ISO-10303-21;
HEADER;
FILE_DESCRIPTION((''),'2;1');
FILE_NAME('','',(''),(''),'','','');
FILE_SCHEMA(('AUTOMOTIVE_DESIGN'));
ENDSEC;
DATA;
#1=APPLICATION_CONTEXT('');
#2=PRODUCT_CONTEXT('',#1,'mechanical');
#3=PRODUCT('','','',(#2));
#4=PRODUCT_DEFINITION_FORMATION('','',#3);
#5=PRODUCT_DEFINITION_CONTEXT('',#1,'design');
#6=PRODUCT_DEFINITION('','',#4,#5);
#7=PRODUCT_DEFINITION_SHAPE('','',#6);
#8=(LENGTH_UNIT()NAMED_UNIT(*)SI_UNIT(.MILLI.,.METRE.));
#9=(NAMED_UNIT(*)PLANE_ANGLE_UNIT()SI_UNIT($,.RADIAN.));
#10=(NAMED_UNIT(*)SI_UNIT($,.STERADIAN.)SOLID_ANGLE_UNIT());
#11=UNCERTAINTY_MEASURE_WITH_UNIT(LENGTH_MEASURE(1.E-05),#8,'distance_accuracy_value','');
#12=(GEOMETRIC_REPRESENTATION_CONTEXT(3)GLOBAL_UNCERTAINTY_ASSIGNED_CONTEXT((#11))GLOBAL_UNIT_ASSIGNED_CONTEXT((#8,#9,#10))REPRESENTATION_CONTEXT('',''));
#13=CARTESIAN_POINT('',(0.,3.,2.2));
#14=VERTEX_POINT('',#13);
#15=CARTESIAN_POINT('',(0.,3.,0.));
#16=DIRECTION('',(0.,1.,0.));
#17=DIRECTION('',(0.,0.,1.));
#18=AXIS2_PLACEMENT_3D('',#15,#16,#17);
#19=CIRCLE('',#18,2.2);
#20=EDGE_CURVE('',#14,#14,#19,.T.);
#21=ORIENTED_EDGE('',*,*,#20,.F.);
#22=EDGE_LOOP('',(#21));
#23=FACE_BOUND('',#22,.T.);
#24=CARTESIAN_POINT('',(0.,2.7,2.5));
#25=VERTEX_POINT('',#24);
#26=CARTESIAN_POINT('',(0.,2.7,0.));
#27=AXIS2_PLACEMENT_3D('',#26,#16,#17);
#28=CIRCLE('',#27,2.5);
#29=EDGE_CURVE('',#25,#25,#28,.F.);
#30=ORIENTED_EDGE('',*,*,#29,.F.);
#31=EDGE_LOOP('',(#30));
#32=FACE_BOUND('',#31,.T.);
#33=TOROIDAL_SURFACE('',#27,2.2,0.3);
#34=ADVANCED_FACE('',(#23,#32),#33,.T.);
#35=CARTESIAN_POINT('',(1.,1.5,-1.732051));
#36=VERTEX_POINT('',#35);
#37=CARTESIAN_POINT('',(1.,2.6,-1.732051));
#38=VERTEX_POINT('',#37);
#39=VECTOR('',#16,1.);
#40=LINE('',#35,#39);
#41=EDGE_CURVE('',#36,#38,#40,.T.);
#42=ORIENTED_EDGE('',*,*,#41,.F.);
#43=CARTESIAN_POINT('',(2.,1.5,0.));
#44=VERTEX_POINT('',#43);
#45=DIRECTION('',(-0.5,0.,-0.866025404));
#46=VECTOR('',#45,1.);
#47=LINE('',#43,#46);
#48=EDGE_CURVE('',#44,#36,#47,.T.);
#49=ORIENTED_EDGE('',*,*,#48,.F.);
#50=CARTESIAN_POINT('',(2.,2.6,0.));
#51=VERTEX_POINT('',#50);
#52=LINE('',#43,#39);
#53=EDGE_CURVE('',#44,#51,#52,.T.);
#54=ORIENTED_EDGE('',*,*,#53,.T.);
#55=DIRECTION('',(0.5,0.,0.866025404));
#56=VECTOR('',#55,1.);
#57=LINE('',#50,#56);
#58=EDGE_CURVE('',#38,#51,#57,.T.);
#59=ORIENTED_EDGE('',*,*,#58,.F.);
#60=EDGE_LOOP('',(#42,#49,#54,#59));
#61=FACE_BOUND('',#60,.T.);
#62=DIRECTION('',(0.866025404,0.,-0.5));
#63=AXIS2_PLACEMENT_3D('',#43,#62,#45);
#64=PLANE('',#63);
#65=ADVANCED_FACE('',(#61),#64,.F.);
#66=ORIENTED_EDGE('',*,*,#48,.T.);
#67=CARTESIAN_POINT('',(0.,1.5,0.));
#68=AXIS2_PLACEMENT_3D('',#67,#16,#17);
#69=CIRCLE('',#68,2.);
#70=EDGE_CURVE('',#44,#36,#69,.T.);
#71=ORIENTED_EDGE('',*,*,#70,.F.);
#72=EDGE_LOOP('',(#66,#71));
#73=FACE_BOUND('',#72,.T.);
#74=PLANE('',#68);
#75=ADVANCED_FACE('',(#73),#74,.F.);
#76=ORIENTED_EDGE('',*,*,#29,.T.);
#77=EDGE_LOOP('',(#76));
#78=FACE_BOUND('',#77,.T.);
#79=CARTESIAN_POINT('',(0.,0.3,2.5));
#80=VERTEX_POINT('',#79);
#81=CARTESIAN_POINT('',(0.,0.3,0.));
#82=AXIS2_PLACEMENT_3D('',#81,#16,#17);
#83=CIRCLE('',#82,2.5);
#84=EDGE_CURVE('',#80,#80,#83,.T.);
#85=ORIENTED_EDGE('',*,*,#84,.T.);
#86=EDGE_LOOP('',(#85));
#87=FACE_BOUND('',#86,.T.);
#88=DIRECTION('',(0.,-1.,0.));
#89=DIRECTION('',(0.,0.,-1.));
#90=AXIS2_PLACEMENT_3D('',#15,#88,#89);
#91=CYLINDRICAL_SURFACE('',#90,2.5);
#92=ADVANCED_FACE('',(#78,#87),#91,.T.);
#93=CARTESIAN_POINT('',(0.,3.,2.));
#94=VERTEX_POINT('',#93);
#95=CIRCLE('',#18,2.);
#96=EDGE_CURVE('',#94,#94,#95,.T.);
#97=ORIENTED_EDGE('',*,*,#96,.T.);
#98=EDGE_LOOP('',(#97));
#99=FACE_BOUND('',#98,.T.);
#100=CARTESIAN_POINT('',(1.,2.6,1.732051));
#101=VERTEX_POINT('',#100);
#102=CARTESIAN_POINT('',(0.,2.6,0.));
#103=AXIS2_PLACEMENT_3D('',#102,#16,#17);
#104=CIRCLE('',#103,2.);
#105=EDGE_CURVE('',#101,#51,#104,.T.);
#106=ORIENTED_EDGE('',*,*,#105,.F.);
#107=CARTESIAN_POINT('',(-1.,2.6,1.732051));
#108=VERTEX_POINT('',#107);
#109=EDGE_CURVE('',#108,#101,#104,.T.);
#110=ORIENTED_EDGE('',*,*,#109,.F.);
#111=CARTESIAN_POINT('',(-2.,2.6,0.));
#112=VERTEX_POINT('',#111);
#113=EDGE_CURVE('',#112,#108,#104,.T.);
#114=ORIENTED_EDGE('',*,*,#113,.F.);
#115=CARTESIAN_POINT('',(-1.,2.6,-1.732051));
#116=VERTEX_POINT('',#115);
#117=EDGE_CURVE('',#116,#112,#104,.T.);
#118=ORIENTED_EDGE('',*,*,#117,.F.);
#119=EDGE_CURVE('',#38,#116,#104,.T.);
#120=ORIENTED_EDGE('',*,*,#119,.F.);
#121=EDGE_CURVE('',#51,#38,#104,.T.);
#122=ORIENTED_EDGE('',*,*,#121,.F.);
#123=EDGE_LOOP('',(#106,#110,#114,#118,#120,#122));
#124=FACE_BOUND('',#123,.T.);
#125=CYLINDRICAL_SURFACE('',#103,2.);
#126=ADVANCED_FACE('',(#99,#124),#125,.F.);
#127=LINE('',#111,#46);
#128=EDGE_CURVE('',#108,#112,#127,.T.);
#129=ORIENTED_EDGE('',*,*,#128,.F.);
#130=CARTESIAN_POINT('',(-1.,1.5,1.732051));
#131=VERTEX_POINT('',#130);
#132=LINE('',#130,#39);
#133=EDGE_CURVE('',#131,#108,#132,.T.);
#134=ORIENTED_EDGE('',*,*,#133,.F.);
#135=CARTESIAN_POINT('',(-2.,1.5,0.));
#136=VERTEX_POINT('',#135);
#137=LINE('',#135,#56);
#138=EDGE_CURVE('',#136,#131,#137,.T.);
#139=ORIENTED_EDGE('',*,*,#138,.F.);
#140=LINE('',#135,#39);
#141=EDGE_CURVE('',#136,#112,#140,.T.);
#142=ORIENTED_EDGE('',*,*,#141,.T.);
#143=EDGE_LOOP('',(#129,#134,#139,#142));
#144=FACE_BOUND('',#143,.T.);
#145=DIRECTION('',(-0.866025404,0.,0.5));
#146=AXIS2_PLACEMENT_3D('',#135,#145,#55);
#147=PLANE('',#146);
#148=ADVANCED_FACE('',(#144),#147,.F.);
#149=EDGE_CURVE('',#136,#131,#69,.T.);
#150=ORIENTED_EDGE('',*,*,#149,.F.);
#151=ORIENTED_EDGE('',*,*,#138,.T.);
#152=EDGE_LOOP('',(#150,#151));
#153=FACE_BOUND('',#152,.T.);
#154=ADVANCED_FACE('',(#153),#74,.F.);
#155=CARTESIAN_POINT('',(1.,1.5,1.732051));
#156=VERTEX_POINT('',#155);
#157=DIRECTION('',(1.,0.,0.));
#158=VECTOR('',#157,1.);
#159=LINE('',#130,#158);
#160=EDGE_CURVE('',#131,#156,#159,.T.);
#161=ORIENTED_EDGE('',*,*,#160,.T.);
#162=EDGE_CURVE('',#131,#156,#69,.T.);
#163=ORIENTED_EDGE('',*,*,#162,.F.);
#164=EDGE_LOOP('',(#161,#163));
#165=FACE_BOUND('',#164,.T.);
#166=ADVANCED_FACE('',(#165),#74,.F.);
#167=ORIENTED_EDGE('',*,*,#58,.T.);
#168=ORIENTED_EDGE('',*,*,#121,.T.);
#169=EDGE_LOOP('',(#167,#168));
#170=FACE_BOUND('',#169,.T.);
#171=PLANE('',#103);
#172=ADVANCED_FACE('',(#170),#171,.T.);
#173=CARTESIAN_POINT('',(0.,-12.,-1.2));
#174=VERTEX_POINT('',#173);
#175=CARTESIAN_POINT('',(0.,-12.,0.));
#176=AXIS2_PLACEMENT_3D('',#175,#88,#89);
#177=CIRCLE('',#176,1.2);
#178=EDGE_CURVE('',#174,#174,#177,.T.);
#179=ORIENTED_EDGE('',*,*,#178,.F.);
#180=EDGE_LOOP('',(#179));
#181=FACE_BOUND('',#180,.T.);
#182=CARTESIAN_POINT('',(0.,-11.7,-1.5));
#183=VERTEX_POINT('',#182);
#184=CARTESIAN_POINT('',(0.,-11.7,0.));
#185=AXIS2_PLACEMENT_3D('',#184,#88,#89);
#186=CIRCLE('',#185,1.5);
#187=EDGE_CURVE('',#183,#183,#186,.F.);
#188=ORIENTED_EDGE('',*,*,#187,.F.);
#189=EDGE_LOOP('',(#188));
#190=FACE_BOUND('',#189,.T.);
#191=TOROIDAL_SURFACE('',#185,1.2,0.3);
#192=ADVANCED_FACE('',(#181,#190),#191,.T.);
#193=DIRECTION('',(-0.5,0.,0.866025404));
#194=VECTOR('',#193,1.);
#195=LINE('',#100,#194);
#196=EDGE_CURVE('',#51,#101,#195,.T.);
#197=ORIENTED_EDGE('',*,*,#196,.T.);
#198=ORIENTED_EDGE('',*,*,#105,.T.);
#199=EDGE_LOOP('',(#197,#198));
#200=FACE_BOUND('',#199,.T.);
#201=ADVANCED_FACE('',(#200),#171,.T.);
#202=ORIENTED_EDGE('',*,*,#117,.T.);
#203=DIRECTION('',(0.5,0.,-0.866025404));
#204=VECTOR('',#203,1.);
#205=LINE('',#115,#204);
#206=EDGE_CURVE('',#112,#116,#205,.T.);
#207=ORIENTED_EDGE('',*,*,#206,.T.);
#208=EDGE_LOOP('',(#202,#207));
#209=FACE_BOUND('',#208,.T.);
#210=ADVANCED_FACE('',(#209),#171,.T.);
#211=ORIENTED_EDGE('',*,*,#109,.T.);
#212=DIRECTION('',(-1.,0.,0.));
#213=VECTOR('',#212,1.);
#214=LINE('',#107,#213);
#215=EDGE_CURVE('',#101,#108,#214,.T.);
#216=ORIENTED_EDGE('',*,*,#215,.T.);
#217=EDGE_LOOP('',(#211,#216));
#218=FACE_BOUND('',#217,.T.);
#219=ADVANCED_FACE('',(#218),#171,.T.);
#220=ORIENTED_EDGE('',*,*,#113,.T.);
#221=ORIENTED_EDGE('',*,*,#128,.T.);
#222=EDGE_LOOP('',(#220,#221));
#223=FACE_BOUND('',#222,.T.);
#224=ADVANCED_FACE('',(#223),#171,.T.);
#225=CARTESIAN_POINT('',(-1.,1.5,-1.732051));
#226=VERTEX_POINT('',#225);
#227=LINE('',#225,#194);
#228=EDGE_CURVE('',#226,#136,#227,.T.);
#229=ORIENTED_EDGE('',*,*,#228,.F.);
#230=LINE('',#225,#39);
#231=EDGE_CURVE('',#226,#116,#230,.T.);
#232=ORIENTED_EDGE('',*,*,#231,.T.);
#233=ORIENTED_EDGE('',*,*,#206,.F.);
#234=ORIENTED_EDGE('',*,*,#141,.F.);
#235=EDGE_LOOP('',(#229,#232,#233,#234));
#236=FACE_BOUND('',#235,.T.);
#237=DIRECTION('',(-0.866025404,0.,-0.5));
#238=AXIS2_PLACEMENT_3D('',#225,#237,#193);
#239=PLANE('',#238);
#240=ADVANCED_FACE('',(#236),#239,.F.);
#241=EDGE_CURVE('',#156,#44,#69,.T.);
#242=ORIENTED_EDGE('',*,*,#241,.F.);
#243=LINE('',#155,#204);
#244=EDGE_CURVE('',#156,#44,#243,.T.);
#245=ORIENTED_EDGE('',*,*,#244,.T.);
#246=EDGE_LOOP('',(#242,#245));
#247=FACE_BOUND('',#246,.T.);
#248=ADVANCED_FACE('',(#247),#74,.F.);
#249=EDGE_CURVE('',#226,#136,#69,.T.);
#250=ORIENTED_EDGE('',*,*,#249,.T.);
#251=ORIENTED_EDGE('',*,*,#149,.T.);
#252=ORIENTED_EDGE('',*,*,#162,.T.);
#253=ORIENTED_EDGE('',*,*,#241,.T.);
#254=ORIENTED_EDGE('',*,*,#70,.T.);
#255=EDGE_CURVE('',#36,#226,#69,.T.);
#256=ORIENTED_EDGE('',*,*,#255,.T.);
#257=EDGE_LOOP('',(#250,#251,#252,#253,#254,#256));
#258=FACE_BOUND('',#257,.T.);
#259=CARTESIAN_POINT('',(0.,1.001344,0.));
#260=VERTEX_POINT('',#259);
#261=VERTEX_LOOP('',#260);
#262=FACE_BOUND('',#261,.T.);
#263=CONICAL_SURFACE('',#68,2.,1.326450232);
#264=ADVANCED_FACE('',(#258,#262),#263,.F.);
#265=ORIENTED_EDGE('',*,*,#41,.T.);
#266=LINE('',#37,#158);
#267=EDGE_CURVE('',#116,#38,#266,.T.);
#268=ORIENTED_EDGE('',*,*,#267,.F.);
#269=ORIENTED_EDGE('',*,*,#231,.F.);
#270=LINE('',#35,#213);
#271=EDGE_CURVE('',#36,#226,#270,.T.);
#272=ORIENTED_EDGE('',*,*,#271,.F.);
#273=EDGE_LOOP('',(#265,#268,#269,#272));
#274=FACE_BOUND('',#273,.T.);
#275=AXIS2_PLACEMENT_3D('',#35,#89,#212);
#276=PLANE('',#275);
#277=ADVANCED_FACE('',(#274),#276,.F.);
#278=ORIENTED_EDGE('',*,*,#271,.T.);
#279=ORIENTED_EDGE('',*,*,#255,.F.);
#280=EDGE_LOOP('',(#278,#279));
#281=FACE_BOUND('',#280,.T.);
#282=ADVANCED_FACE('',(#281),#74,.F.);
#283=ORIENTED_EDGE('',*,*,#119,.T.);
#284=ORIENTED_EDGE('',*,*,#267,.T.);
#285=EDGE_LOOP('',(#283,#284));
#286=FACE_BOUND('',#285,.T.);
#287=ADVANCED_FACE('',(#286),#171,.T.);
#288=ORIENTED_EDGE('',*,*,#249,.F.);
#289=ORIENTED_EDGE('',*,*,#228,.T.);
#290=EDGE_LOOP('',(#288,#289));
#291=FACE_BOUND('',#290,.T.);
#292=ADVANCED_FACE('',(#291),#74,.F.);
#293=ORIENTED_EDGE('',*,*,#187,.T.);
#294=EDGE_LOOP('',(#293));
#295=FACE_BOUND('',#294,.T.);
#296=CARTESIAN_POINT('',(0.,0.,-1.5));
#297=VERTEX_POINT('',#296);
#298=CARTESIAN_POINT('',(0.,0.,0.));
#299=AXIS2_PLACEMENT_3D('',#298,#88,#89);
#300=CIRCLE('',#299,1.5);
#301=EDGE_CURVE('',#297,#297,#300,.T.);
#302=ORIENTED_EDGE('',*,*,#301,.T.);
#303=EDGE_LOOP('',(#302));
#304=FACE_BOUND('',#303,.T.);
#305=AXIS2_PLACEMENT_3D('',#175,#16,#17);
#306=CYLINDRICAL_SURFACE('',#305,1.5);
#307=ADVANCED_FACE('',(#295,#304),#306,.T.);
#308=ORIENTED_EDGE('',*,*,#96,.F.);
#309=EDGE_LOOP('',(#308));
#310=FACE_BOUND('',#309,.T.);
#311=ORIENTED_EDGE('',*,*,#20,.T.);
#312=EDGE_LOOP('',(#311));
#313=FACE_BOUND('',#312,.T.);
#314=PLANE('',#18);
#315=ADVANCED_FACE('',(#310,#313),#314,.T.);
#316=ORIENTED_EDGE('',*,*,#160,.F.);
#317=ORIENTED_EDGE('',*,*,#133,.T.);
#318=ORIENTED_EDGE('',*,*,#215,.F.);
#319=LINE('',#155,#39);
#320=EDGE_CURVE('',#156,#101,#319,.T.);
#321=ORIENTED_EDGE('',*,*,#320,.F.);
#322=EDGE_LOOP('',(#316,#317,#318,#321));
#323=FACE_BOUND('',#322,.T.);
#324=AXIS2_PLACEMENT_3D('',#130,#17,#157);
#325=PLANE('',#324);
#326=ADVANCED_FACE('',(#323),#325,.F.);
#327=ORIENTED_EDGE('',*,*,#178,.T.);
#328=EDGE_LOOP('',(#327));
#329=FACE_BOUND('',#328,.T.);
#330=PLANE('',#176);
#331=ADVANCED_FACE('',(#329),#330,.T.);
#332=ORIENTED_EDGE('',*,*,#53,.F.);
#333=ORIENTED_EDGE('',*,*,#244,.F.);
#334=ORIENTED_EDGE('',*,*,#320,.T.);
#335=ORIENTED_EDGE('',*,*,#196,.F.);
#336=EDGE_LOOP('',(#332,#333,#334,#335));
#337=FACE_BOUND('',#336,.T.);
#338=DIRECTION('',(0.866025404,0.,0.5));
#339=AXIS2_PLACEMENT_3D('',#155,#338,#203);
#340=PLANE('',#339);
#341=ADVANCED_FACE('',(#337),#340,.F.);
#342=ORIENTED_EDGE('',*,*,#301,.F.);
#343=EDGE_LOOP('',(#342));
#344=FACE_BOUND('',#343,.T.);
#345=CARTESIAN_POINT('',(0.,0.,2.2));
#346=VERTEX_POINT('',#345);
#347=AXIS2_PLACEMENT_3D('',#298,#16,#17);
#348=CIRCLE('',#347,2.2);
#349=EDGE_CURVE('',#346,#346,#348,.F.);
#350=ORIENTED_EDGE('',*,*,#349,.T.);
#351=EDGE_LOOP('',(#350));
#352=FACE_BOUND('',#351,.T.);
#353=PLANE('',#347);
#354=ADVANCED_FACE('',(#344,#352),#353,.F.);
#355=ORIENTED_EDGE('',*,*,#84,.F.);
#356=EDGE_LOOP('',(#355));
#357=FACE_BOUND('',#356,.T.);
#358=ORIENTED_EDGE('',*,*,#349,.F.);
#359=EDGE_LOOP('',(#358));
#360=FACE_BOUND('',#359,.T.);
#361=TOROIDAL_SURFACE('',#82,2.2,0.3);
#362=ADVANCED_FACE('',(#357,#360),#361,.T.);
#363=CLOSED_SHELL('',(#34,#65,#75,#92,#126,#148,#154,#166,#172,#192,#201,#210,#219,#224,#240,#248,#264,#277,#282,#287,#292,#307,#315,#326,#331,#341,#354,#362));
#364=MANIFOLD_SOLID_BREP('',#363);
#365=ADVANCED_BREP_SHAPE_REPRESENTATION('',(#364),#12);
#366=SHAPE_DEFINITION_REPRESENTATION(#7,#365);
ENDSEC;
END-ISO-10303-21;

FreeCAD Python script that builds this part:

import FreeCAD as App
import Part
import Sketcher
from FreeCAD import Vector
Q = App.Units.Quantity


def edges_at(feature, points):
    """Names of the edges that pass closest to the given points."""
    edges = feature.Shape.Edges
    near = lambda p: min(range(len(edges)), key=lambda i: edges[i].distToShape(Part.Vertex(*p))[0])
    return sorted({f"Edge{near(p) + 1}" for p in points})


def add_polygon(sketch, points):
    """Adds a closed chain of lines whose ends are joined by coincident constraints."""
    first, n = sketch.GeometryCount, len(points)
    for a, b in zip(points, points[1:] + points[:1]):
        sketch.addGeometry(Part.LineSegment(App.Vector(*a, 0), App.Vector(*b, 0)), False)
    for i in range(n):
        sketch.addConstraint(Sketcher.Constraint("Coincident", first + i, 2, first + (i + 1) % n, 1))

doc = App.newDocument("Part")
body = doc.addObject("PartDesign::Body", "Body")

# Sketch on XZ plane
sketch1 = doc.addObject("Sketcher::SketchObject", "Sketch")
body.addObject(sketch1)
sketch1.AttachmentSupport = (doc.XZ_Plane, [""])
sketch1.MapMode = "FlatFace"
sketch1.addGeometry(Part.Circle(Vector(0, 0, 0), Vector(0, 0, 1), 2.5), False)
sketch1.addConstraint([
    Sketcher.Constraint("Coincident", 0, 3, -1, 1),
    Sketcher.Constraint("Diameter", 0, Q("5 mm")),
])
pad1 = doc.addObject("PartDesign::Pad", "Pad")
body.addObject(pad1)
pad1.Profile = sketch1
pad1.Length = 3
pad1.Reversed = True

# Sketch on XZ plane
sketch2 = doc.addObject("Sketcher::SketchObject", "Sketch001")
body.addObject(sketch2)
sketch2.AttachmentSupport = (doc.XZ_Plane, [""])
sketch2.MapMode = "FlatFace"
sketch2.AttachmentOffset = App.Placement(Vector(0, 0, -3), App.Rotation())
add_polygon(sketch2, [(2, 0), (1, -1.732051), (-1, -1.732051), (-2, 0), (-1, 1.732051), (1, 1.732051)])  # lines 0-5
sketch2.addConstraint([
    Sketcher.Constraint("Horizontal", 1),
    Sketcher.Constraint("Horizontal", 4),
    Sketcher.Constraint("Symmetric", 0, 2, 3, 2, -1, 1),
    Sketcher.Constraint("Symmetric", 2, 2, 5, 2, -1, 1),
    Sketcher.Constraint("PointOnObject", 2, 2, -1),
    Sketcher.Constraint("Parallel", 2, 5),
    Sketcher.Constraint("Vertical", 1, 2, 3, 2),
    Sketcher.Constraint("DistanceX", 1, 2, 1, 1, Q("2 mm")),
    Sketcher.Constraint("Angle", 0, Q("-120 deg")),
    Sketcher.Constraint("Distance", 0, Q("2 mm")),
])
pocket1 = doc.addObject("PartDesign::Pocket", "Pocket")
body.addObject(pocket1)
pocket1.Profile = sketch2
pocket1.Length = 1.5
pocket1.Reversed = True

# Sketch on XZ plane
sketch3 = doc.addObject("Sketcher::SketchObject", "Sketch002")
body.addObject(sketch3)
sketch3.AttachmentSupport = (doc.XZ_Plane, [""])
sketch3.MapMode = "FlatFace"
sketch3.AttachmentOffset = App.Placement(Vector(0, 0, -3), App.Rotation())
sketch3.addGeometry(Part.Circle(Vector(0, 0, 0), Vector(0, 0, 1), 2), False)
sketch3.addConstraint([
    Sketcher.Constraint("Coincident", 0, 3, -1, 1),
    Sketcher.Constraint("Diameter", 0, Q("4 mm")),
])
pocket2 = doc.addObject("PartDesign::Pocket", "Pocket001")
body.addObject(pocket2)
pocket2.Profile = sketch3
pocket2.Length = 0.4
pocket2.Reversed = True

# Sketch on YZ plane
sketch4 = doc.addObject("Sketcher::SketchObject", "Sketch003")
body.addObject(sketch4)
sketch4.AttachmentSupport = (doc.YZ_Plane, [""])
sketch4.MapMode = "FlatFace"
add_polygon(sketch4, [(1.5, 0), (1.5, 2), (1.001344, 0)])  # lines 0-2
sketch4.addConstraint([
    Sketcher.Constraint("Vertical", 0),
    Sketcher.Constraint("Horizontal", 2),
    Sketcher.Constraint("PointOnObject", 1, 2, -1),
    Sketcher.Constraint("DistanceY", 0, 1, 0, 2, Q("2 mm")),
    Sketcher.Constraint("Angle", 1, Q("-104 deg")),
    Sketcher.Constraint("DistanceX", -1, 1, 0, 2, Q("1.5 mm")),
])
groove = doc.addObject("PartDesign::Groove", "Groove")
body.addObject(groove)
groove.Profile = sketch4
groove.ReferenceAxis = (sketch4, ["H_Axis"])
groove.Angle = 360

# Sketch on XZ plane
sketch5 = doc.addObject("Sketcher::SketchObject", "Sketch004")
body.addObject(sketch5)
sketch5.AttachmentSupport = (doc.XZ_Plane, [""])
sketch5.MapMode = "FlatFace"
sketch5.addGeometry(Part.Circle(Vector(0, 0, 0), Vector(0, 0, 1), 1.5), False)
sketch5.addConstraint([
    Sketcher.Constraint("Coincident", 0, 3, -1, 1),
    Sketcher.Constraint("Diameter", 0, Q("3 mm")),
])
pad2 = doc.addObject("PartDesign::Pad", "Pad001")
body.addObject(pad2)
pad2.Profile = sketch5
pad2.Length = 12
doc.recompute()

fillet = doc.addObject("PartDesign::Fillet", "Fillet")
body.addObject(fillet)
fillet.Base = (pad2, edges_at(pad2, [(0, 0, -2.5), (0, 3, -2.5)]))
fillet.Radius = 0.3
doc.recompute()

fillet2 = doc.addObject("PartDesign::Fillet", "Fillet001")
body.addObject(fillet2)
fillet2.Base = (fillet, edges_at(fillet, [(0, -12, 1.5)]))
fillet2.Radius = 0.3

doc.recompute()
